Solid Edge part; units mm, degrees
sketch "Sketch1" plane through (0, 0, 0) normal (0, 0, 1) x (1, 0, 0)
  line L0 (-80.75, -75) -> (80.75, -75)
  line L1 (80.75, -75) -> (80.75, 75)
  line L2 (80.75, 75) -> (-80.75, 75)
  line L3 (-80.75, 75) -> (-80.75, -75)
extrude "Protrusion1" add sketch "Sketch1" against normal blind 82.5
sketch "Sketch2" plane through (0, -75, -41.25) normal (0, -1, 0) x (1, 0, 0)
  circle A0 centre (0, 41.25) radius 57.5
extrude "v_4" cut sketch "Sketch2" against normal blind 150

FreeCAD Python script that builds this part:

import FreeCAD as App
import Part
import Sketcher

V = App.Vector
Q = App.Units.Quantity

doc = App.newDocument("Part")
body = doc.addObject("PartDesign::Body", "Body")

# Sketch on XY plane
sketch1 = doc.addObject("Sketcher::SketchObject", "Sketch")
body.addObject(sketch1)
sketch1.AttachmentSupport = (doc.XY_Plane, [""])
sketch1.MapMode = "FlatFace"
sketch1.addGeometry(Part.LineSegment(V(-81, 75, 0), V(-81, -75, 0)), False)
sketch1.addGeometry(Part.LineSegment(V(-81, -75, 0), V(81, -75, 0)), False)
sketch1.addGeometry(Part.LineSegment(V(81, -75, 0), V(81, 75, 0)), False)
sketch1.addGeometry(Part.LineSegment(V(81, 75, 0), V(-81, 75, 0)), False)
sketch1.addConstraint(Sketcher.Constraint("Coincident", 0, 2, 1, 1))
sketch1.addConstraint(Sketcher.Constraint("Coincident", 1, 2, 2, 1))
sketch1.addConstraint(Sketcher.Constraint("Coincident", 2, 2, 3, 1))
sketch1.addConstraint(Sketcher.Constraint("Coincident", 3, 2, 0, 1))
sketch1.addConstraint(Sketcher.Constraint("Vertical", 0))
sketch1.addConstraint(Sketcher.Constraint("Horizontal", 1))
sketch1.addConstraint(Sketcher.Constraint("Vertical", 2))
sketch1.addConstraint(Sketcher.Constraint("Horizontal", 3))
sketch1.addConstraint(Sketcher.Constraint("Symmetric", 0, 2, 2, 2, -1, 1))
sketch1.addConstraint(Sketcher.Constraint("DistanceY", 0, 2, 0, 1, Q("150 mm")))
sketch1.addConstraint(Sketcher.Constraint("DistanceX", 1, 1, 1, 2, Q("161.5 mm")))
pad1 = doc.addObject("PartDesign::Pad", "Pad")
body.addObject(pad1)
pad1.Profile = sketch1
pad1.Length = 82.5
pad1.Reversed = True

# Sketch on XZ plane
sketch2 = doc.addObject("Sketcher::SketchObject", "Sketch001")
body.addObject(sketch2)
sketch2.AttachmentSupport = (doc.XZ_Plane, [""])
sketch2.MapMode = "FlatFace"
sketch2.AttachmentOffset = App.Placement(V(0, 0, 75), App.Rotation())
sketch2.addGeometry(Part.Circle(V(0, 0, 0), V(0, 0, 1), 58), False)
sketch2.addConstraint(Sketcher.Constraint("Coincident", 0, 3, -1, 1))
sketch2.addConstraint(Sketcher.Constraint("Diameter", 0, Q("115 mm")))
pocket1 = doc.addObject("PartDesign::Pocket", "Pocket")
body.addObject(pocket1)
pocket1.Profile = sketch2
pocket1.Length = 150

doc.recompute()
